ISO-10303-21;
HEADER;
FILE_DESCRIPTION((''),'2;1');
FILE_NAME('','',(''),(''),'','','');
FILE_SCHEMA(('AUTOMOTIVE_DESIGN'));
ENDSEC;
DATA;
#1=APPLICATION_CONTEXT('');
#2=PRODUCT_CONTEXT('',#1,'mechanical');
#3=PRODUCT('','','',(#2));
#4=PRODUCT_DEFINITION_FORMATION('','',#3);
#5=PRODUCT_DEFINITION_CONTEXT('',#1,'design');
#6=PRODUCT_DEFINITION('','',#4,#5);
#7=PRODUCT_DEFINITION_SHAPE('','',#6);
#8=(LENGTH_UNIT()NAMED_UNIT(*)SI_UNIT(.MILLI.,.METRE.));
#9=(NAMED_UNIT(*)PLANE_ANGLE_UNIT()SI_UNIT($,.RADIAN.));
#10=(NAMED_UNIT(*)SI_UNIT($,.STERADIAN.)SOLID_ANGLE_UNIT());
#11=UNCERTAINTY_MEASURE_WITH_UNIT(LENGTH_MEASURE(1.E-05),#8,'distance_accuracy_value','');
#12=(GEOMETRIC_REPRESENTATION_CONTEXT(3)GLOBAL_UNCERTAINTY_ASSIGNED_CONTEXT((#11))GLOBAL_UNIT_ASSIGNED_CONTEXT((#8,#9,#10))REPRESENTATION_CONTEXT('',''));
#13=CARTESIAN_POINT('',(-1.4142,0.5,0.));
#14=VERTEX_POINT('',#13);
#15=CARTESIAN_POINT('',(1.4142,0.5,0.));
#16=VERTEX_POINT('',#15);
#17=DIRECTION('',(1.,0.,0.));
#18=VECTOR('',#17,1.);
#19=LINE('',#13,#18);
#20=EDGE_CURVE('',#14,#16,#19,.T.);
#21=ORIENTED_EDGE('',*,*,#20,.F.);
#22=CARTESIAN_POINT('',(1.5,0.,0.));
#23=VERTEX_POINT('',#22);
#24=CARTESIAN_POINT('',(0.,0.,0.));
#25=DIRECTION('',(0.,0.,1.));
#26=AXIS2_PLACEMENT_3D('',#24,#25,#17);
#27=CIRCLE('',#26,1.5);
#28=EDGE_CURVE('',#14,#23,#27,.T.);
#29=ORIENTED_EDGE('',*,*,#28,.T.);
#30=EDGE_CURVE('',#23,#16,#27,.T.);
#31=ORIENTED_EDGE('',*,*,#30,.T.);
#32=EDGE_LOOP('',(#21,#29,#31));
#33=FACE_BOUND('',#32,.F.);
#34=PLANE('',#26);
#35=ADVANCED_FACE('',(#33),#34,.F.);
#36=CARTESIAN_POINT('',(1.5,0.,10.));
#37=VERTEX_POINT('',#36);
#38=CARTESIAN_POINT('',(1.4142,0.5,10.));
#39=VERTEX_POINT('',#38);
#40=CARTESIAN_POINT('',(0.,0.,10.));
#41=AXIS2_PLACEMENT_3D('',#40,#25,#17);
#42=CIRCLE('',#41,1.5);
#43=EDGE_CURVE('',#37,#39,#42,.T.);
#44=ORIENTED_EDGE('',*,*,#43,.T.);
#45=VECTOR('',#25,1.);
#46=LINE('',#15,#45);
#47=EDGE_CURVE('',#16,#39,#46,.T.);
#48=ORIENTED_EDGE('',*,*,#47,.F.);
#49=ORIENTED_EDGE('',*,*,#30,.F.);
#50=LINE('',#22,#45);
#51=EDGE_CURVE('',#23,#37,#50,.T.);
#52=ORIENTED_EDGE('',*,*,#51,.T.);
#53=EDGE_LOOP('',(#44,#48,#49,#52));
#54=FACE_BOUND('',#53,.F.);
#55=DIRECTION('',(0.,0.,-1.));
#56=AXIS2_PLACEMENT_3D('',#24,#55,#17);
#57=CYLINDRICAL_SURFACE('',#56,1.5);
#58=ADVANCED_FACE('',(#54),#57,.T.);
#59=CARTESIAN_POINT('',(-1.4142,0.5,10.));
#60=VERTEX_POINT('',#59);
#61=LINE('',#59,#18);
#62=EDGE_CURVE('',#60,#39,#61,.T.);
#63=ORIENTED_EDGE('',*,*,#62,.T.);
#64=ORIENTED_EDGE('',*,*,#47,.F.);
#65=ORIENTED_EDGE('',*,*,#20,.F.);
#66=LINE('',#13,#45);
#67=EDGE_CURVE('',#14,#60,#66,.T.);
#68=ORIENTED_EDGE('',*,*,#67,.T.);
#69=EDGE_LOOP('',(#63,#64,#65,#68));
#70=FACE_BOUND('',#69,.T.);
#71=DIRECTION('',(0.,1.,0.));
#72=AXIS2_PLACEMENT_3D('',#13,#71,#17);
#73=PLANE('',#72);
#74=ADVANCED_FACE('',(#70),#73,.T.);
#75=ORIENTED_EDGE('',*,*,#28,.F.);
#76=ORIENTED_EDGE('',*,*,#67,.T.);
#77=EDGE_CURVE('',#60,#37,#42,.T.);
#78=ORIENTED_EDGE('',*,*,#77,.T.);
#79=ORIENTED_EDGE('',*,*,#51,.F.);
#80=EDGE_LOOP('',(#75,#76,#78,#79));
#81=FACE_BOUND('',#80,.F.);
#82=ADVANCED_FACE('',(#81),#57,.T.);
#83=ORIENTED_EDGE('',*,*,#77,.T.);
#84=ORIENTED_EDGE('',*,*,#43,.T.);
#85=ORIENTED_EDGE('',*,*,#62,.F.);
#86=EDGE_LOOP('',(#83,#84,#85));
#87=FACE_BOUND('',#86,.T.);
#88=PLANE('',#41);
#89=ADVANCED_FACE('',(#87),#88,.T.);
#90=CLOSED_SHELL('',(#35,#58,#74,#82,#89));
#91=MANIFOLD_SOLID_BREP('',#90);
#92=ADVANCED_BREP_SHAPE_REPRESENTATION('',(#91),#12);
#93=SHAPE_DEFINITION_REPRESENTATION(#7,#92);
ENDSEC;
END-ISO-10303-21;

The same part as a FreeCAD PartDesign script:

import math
import FreeCAD as App
import Part
import Sketcher
Q = App.Units.Quantity

doc = App.newDocument("Part")
params = doc.addObject("Spreadsheet::Sheet", "Params")
for row, (alias, value) in enumerate([
    ("sketch1_radius", "1.5 mm"),
    ("pad1_length", "10 mm"),
], start=1):
    params.set(f"A{row}", alias)
    params.set(f"B{row}", "=" + value)
    params.setAlias(f"B{row}", alias)

body = doc.addObject("PartDesign::Body", "Body")

# Sketch on XY plane
sketch1 = doc.addObject("Sketcher::SketchObject", "Sketch")
body.addObject(sketch1)
sketch1.AttachmentSupport = (doc.XY_Plane, [""])
sketch1.MapMode = "FlatFace"
sketch1.addGeometry([
    Part.ArcOfCircle(Part.Circle(App.Vector(0, 0, 0), App.Vector(0, 0, 1), 1.5), math.radians(161), math.radians(379)),
    Part.LineSegment(App.Vector(-1.4, 0.5, 0), App.Vector(1.4, 0.5, 0)),
], False)
sketch1.addConstraint([
    Sketcher.Constraint("Coincident", 0, 1, 1, 1),
    Sketcher.Constraint("Coincident", 1, 2, 0, 2),
    Sketcher.Constraint("Horizontal", 1),
    Sketcher.Constraint("Coincident", 0, 3, -1, 1),
    Sketcher.Constraint("Radius", 0, Q("1.5 mm")),
    Sketcher.Constraint("DistanceY", -1, 1, 0, 1, Q("0.5 mm")),
])
sketch1.setExpression("Constraints[4]", "Params.sketch1_radius")
pad1 = doc.addObject("PartDesign::Pad", "Pad")
body.addObject(pad1)
pad1.Profile = sketch1
pad1.setExpression("Length", "Params.pad1_length")

doc.recompute()
